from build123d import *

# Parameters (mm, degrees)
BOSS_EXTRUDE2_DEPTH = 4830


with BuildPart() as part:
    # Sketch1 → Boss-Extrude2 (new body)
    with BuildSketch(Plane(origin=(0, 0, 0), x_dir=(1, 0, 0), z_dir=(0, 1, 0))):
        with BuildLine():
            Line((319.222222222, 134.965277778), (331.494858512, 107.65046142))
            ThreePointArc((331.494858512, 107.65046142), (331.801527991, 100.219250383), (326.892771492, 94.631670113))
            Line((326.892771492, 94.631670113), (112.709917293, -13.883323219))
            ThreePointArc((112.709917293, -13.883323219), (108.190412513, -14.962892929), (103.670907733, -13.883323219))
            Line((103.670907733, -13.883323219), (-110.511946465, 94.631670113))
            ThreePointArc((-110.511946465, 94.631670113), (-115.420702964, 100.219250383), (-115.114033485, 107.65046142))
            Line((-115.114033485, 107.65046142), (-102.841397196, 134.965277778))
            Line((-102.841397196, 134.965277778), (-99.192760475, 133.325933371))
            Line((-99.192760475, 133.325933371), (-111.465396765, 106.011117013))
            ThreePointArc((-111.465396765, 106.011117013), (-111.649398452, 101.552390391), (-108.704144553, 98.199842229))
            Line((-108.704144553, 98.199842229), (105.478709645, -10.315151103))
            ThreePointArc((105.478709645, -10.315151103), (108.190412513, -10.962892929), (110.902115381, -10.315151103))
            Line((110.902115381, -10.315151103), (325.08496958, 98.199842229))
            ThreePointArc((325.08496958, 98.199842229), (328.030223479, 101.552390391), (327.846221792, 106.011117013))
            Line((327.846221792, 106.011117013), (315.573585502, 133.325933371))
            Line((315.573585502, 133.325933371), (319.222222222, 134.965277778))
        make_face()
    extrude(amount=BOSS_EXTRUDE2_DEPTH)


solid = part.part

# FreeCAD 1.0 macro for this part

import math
import FreeCAD as App
import Part
import Sketcher
from FreeCAD import Vector
Q = App.Units.Quantity

doc = App.newDocument("Part")
body = doc.addObject("PartDesign::Body", "Body")

sketch1 = body.newObject("Sketcher::SketchObject", "Sketch")
sketch1.AttachmentSupport = (doc.getObject("XZ_Plane"), [""])
sketch1.MapMode = "FlatFace"
sketch1.addGeometry(Part.LineSegment(Vector(331.5, -107.7, 0), Vector(319.2, -135, 0)), False)
sketch1.addGeometry(Part.LineSegment(Vector(319.2, -135, 0), Vector(315.6, -133.3, 0)), False)
sketch1.addGeometry(Part.LineSegment(Vector(315.6, -133.3, 0), Vector(327.8, -106, 0)), False)
sketch1.addGeometry(Part.ArcOfCircle(Part.Circle(Vector(322.4, -103.6, 0), Vector(0, 0, 1), 6), math.radians(-24), math.radians(63)), False)
sketch1.addGeometry(Part.LineSegment(Vector(325.1, -98.2, 0), Vector(110.9, 10.3, 0)), False)
sketch1.addGeometry(Part.ArcOfCircle(Part.Circle(Vector(108.2, 5, 0), Vector(0, 0, 1), 6), math.radians(63), math.radians(117)), False)
sketch1.addGeometry(Part.LineSegment(Vector(105.5, 10.3, 0), Vector(-108.7, -98.2, 0)), False)
sketch1.addGeometry(Part.ArcOfCircle(Part.Circle(Vector(-106, -103.6, 0), Vector(0, 0, 1), 6), math.radians(117), math.radians(204)), False)
sketch1.addGeometry(Part.LineSegment(Vector(-111.5, -106, 0), Vector(-99.2, -133.3, 0)), False)
sketch1.addGeometry(Part.LineSegment(Vector(-99.2, -133.3, 0), Vector(-102.8, -135, 0)), False)
sketch1.addGeometry(Part.LineSegment(Vector(-102.8, -135, 0), Vector(-115.1, -107.7, 0)), False)
sketch1.addGeometry(Part.ArcOfCircle(Part.Circle(Vector(-106, -103.6, 0), Vector(0, 0, 1), 10), math.radians(117), math.radians(204)), False)
sketch1.addGeometry(Part.LineSegment(Vector(-110.5, -94.6, 0), Vector(103.7, 13.9, 0)), False)
sketch1.addGeometry(Part.ArcOfCircle(Part.Circle(Vector(108.2, 5, 0), Vector(0, 0, 1), 10), math.radians(63), math.radians(117)), False)
sketch1.addGeometry(Part.LineSegment(Vector(112.7, 13.9, 0), Vector(326.9, -94.6, 0)), False)
sketch1.addGeometry(Part.ArcOfCircle(Part.Circle(Vector(322.4, -103.6, 0), Vector(0, 0, 1), 10), math.radians(-24), math.radians(63)), False)
sketch1.addConstraint(Sketcher.Constraint("Coincident", 0, 2, 1, 1))
sketch1.addConstraint(Sketcher.Constraint("Coincident", 1, 2, 2, 1))
sketch1.addConstraint(Sketcher.Constraint("Tangent", 2, 2, 3, 1))
sketch1.addConstraint(Sketcher.Constraint("Tangent", 3, 2, 4, 1))
sketch1.addConstraint(Sketcher.Constraint("Tangent", 4, 2, 5, 1))
sketch1.addConstraint(Sketcher.Constraint("Tangent", 5, 2, 6, 1))
sketch1.addConstraint(Sketcher.Constraint("Tangent", 6, 2, 7, 1))
sketch1.addConstraint(Sketcher.Constraint("Tangent", 7, 2, 8, 1))
sketch1.addConstraint(Sketcher.Constraint("Coincident", 8, 2, 9, 1))
sketch1.addConstraint(Sketcher.Constraint("Coincident", 9, 2, 10, 1))
sketch1.addConstraint(Sketcher.Constraint("Tangent", 10, 2, 11, 2))
sketch1.addConstraint(Sketcher.Constraint("Tangent", 11, 1, 12, 1))
sketch1.addConstraint(Sketcher.Constraint("Tangent", 12, 2, 13, 2))
sketch1.addConstraint(Sketcher.Constraint("Tangent", 13, 1, 14, 1))
sketch1.addConstraint(Sketcher.Constraint("Tangent", 14, 2, 15, 2))
sketch1.addConstraint(Sketcher.Constraint("Tangent", 15, 1, 0, 1))
sketch1.addConstraint(Sketcher.Constraint("Coincident", 11, 3, 7, 3))
sketch1.addConstraint(Sketcher.Constraint("Coincident", 13, 3, 5, 3))
sketch1.addConstraint(Sketcher.Constraint("Coincident", 15, 3, 3, 3))
sketch1.addConstraint(Sketcher.Constraint("Equal", 3, 5))
sketch1.addConstraint(Sketcher.Constraint("Equal", 5, 7))
sketch1.addConstraint(Sketcher.Constraint("Equal", 11, 13))
sketch1.addConstraint(Sketcher.Constraint("Equal", 13, 15))
sketch1.addConstraint(Sketcher.Constraint("Perpendicular", 0, 1))
sketch1.addConstraint(Sketcher.Constraint("Perpendicular", 1, 2))
sketch1.addConstraint(Sketcher.Constraint("Perpendicular", 8, 9))
sketch1.addConstraint(Sketcher.Constraint("Perpendicular", 9, 10))
sketch1.addConstraint(Sketcher.Constraint("Horizontal", 3, 3, 7, 3))
sketch1.addConstraint(Sketcher.Constraint("Horizontal", 2, 2, 7, 2))
sketch1.addConstraint(Sketcher.Constraint("Horizontal", 1, 2, 8, 2))
sketch1.addConstraint(Sketcher.Constraint("Equal", 4, 6))
sketch1.addConstraint(Sketcher.Constraint("Radius", 3, Q("6 mm")))
sketch1.addConstraint(Sketcher.Constraint("Radius", 11, Q("10 mm")))
sketch1.addConstraint(Sketcher.Constraint("DistanceX", 0, 2, 2, 2, Q("8.624 mm")))
sketch1.addConstraint(Sketcher.Constraint("DistanceY", 3, 3, -1, 1, Q("103.5521 mm")))
sketch1.addConstraint(Sketcher.Constraint("Distance", 0, Q("29.94523 mm")))
sketch1.addConstraint(Sketcher.Constraint("DistanceX", 7, 3, -1, 1, Q("105.992442 mm")))
sketch1.addConstraint(Sketcher.Constraint("DistanceX", -1, 1, 2, 2, Q("327.846222 mm")))
sketch1.addConstraint(Sketcher.Constraint("DistanceY", -1, 1, 4, 2, Q("10.315151 mm")))
pad1 = body.newObject("PartDesign::Pad", "Pad")
pad1.Profile = sketch1
pad1.Length = 4830
pad1.Reversed = True

doc.recompute()
